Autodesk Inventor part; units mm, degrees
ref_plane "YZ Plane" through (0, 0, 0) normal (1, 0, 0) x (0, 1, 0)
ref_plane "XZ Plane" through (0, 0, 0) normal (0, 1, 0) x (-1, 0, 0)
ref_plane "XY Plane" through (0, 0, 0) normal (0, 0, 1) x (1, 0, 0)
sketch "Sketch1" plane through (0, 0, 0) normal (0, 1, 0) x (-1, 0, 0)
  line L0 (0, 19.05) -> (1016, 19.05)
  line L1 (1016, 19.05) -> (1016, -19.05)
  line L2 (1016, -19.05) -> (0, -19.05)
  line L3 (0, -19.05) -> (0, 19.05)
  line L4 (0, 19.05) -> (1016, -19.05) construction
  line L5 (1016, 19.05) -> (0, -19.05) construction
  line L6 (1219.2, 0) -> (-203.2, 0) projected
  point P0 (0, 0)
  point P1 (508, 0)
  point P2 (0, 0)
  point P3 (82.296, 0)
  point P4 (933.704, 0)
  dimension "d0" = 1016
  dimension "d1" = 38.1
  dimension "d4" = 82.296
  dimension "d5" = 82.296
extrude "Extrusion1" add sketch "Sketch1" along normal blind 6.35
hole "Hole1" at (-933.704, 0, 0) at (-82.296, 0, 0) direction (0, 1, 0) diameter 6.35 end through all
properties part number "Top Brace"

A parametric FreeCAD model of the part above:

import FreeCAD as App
import Part
import Sketcher
Q = App.Units.Quantity

doc = App.newDocument("Part")
body = doc.addObject("PartDesign::Body", "Body")

# Sketch on XZ plane
sketch1 = doc.addObject("Sketcher::SketchObject", "Sketch")
body.addObject(sketch1)
sketch1.AttachmentSupport = (doc.XZ_Plane, [""])
sketch1.MapMode = "FlatFace"
sketch1.addGeometry([
    Part.LineSegment(App.Vector(-1016, 19.05, 0), App.Vector(0, 19.05, 0)),
    Part.LineSegment(App.Vector(0, 19.05, 0), App.Vector(0, -19.05, 0)),
    Part.LineSegment(App.Vector(0, -19.05, 0), App.Vector(-1016, -19.05, 0)),
    Part.LineSegment(App.Vector(-1016, -19.05, 0), App.Vector(-1016, 19.05, 0)),
], False)
sketch1.addConstraint([
    Sketcher.Constraint("Coincident", 0, 2, 1, 1),
    Sketcher.Constraint("Coincident", 1, 2, 2, 1),
    Sketcher.Constraint("Coincident", 2, 2, 3, 1),
    Sketcher.Constraint("Coincident", 3, 2, 0, 1),
    Sketcher.Constraint("Horizontal", 0),
    Sketcher.Constraint("Vertical", 1),
    Sketcher.Constraint("Horizontal", 2),
    Sketcher.Constraint("Vertical", 3),
    Sketcher.Constraint("Symmetric", 0, 2, 1, 2, -1, 1),
    Sketcher.Constraint("DistanceX", 0, 1, 0, 2, Q("40 in")),
    Sketcher.Constraint("DistanceY", 1, 2, 1, 1, Q("1.5 in")),
])
pad1 = doc.addObject("PartDesign::Pad", "Pad")
body.addObject(pad1)
pad1.Profile = sketch1
pad1.Length = Q("0.25 in")
pad1.Reversed = True

# Sketch on XZ plane
sketch2 = doc.addObject("Sketcher::SketchObject", "Sketch001")
body.addObject(sketch2)
sketch2.AttachmentSupport = (doc.XZ_Plane, [""])
sketch2.MapMode = "FlatFace"
sketch2.addGeometry([
    Part.Circle(App.Vector(-933.704, 0, 0), App.Vector(0, 0, 1), 3.175),
    Part.Circle(App.Vector(-82.296, 0, 0), App.Vector(0, 0, 1), 3.175),
], False)
sketch2.addConstraint([
    Sketcher.Constraint("Equal", 0, 1),
    Sketcher.Constraint("PointOnObject", 0, 3, -1),
    Sketcher.Constraint("PointOnObject", 1, 3, -1),
    Sketcher.Constraint("Diameter", 0, Q("0.25 in")),
    Sketcher.Constraint("DistanceX", 0, 3, -1, 1, Q("36.76 in")),
    Sketcher.Constraint("DistanceX", 1, 3, -1, 1, Q("3.24 in")),
])
doc.recompute()
hole = doc.addObject("PartDesign::Hole", "Hole")
body.addObject(hole)
hole.Profile = sketch2
hole.ThreadType = "None"
hole.Diameter = Q("0.25 in")
hole.DepthType = "ThroughAll"

doc.recompute()
